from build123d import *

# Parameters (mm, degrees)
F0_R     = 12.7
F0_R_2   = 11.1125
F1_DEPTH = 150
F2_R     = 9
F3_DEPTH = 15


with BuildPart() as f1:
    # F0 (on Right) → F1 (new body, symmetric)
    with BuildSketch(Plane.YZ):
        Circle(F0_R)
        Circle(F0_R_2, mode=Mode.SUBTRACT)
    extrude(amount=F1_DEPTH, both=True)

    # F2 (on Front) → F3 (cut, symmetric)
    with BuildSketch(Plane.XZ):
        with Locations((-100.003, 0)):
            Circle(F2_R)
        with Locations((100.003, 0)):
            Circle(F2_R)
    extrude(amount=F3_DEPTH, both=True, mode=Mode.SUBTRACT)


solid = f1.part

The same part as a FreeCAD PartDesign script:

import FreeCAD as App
import Part
import Sketcher
Q = App.Units.Quantity

doc = App.newDocument("Part")
body = doc.addObject("PartDesign::Body", "Body")

# Sketch on YZ plane
sketch1 = body.newObject("Sketcher::SketchObject", "Sketch")
sketch1.AttachmentSupport = (doc.getObject("YZ_Plane"), [""])
sketch1.MapMode = "FlatFace"
sketch1.addGeometry([
    Part.Circle(App.Vector(0, 0, 0), App.Vector(0, 0, 1), 13),
    Part.Circle(App.Vector(0, 0, 0), App.Vector(0, 0, 1), 11),
], False)
sketch1.addConstraint([
    Sketcher.Constraint("Coincident", 0, 3, -1, 1),
    Sketcher.Constraint("Coincident", 1, 3, -1, 1),
    Sketcher.Constraint("Diameter", 0, Q("25.4 mm")),
    Sketcher.Constraint("Diameter", 1, Q("22.225 mm")),
])
pad1 = body.newObject("PartDesign::Pad", "Pad")
pad1.Profile = sketch1
pad1.Length = 300
pad1.Midplane = True

# Sketch on XZ plane
sketch2 = body.newObject("Sketcher::SketchObject", "Sketch001")
sketch2.AttachmentSupport = (doc.getObject("XZ_Plane"), [""])
sketch2.MapMode = "FlatFace"
sketch2.addGeometry([
    Part.Circle(App.Vector(-100, 0, 0), App.Vector(0, 0, 1), 9),
    Part.Circle(App.Vector(100, 0, 0), App.Vector(0, 0, 1), 9),
], False)
sketch2.addConstraint([
    Sketcher.Constraint("Equal", 0, 1),
    Sketcher.Constraint("Symmetric", 0, 3, 1, 3, -1, 1),
    Sketcher.Constraint("PointOnObject", 0, 3, -1),
    Sketcher.Constraint("Diameter", 0, Q("18 mm")),
    Sketcher.Constraint("DistanceX", 0, 3, -1, 1, Q("100.003 mm")),
])
pocket1 = body.newObject("PartDesign::Pocket", "Pocket")
pocket1.Profile = sketch2
pocket1.Length = 30
pocket1.Midplane = True

doc.recompute()
